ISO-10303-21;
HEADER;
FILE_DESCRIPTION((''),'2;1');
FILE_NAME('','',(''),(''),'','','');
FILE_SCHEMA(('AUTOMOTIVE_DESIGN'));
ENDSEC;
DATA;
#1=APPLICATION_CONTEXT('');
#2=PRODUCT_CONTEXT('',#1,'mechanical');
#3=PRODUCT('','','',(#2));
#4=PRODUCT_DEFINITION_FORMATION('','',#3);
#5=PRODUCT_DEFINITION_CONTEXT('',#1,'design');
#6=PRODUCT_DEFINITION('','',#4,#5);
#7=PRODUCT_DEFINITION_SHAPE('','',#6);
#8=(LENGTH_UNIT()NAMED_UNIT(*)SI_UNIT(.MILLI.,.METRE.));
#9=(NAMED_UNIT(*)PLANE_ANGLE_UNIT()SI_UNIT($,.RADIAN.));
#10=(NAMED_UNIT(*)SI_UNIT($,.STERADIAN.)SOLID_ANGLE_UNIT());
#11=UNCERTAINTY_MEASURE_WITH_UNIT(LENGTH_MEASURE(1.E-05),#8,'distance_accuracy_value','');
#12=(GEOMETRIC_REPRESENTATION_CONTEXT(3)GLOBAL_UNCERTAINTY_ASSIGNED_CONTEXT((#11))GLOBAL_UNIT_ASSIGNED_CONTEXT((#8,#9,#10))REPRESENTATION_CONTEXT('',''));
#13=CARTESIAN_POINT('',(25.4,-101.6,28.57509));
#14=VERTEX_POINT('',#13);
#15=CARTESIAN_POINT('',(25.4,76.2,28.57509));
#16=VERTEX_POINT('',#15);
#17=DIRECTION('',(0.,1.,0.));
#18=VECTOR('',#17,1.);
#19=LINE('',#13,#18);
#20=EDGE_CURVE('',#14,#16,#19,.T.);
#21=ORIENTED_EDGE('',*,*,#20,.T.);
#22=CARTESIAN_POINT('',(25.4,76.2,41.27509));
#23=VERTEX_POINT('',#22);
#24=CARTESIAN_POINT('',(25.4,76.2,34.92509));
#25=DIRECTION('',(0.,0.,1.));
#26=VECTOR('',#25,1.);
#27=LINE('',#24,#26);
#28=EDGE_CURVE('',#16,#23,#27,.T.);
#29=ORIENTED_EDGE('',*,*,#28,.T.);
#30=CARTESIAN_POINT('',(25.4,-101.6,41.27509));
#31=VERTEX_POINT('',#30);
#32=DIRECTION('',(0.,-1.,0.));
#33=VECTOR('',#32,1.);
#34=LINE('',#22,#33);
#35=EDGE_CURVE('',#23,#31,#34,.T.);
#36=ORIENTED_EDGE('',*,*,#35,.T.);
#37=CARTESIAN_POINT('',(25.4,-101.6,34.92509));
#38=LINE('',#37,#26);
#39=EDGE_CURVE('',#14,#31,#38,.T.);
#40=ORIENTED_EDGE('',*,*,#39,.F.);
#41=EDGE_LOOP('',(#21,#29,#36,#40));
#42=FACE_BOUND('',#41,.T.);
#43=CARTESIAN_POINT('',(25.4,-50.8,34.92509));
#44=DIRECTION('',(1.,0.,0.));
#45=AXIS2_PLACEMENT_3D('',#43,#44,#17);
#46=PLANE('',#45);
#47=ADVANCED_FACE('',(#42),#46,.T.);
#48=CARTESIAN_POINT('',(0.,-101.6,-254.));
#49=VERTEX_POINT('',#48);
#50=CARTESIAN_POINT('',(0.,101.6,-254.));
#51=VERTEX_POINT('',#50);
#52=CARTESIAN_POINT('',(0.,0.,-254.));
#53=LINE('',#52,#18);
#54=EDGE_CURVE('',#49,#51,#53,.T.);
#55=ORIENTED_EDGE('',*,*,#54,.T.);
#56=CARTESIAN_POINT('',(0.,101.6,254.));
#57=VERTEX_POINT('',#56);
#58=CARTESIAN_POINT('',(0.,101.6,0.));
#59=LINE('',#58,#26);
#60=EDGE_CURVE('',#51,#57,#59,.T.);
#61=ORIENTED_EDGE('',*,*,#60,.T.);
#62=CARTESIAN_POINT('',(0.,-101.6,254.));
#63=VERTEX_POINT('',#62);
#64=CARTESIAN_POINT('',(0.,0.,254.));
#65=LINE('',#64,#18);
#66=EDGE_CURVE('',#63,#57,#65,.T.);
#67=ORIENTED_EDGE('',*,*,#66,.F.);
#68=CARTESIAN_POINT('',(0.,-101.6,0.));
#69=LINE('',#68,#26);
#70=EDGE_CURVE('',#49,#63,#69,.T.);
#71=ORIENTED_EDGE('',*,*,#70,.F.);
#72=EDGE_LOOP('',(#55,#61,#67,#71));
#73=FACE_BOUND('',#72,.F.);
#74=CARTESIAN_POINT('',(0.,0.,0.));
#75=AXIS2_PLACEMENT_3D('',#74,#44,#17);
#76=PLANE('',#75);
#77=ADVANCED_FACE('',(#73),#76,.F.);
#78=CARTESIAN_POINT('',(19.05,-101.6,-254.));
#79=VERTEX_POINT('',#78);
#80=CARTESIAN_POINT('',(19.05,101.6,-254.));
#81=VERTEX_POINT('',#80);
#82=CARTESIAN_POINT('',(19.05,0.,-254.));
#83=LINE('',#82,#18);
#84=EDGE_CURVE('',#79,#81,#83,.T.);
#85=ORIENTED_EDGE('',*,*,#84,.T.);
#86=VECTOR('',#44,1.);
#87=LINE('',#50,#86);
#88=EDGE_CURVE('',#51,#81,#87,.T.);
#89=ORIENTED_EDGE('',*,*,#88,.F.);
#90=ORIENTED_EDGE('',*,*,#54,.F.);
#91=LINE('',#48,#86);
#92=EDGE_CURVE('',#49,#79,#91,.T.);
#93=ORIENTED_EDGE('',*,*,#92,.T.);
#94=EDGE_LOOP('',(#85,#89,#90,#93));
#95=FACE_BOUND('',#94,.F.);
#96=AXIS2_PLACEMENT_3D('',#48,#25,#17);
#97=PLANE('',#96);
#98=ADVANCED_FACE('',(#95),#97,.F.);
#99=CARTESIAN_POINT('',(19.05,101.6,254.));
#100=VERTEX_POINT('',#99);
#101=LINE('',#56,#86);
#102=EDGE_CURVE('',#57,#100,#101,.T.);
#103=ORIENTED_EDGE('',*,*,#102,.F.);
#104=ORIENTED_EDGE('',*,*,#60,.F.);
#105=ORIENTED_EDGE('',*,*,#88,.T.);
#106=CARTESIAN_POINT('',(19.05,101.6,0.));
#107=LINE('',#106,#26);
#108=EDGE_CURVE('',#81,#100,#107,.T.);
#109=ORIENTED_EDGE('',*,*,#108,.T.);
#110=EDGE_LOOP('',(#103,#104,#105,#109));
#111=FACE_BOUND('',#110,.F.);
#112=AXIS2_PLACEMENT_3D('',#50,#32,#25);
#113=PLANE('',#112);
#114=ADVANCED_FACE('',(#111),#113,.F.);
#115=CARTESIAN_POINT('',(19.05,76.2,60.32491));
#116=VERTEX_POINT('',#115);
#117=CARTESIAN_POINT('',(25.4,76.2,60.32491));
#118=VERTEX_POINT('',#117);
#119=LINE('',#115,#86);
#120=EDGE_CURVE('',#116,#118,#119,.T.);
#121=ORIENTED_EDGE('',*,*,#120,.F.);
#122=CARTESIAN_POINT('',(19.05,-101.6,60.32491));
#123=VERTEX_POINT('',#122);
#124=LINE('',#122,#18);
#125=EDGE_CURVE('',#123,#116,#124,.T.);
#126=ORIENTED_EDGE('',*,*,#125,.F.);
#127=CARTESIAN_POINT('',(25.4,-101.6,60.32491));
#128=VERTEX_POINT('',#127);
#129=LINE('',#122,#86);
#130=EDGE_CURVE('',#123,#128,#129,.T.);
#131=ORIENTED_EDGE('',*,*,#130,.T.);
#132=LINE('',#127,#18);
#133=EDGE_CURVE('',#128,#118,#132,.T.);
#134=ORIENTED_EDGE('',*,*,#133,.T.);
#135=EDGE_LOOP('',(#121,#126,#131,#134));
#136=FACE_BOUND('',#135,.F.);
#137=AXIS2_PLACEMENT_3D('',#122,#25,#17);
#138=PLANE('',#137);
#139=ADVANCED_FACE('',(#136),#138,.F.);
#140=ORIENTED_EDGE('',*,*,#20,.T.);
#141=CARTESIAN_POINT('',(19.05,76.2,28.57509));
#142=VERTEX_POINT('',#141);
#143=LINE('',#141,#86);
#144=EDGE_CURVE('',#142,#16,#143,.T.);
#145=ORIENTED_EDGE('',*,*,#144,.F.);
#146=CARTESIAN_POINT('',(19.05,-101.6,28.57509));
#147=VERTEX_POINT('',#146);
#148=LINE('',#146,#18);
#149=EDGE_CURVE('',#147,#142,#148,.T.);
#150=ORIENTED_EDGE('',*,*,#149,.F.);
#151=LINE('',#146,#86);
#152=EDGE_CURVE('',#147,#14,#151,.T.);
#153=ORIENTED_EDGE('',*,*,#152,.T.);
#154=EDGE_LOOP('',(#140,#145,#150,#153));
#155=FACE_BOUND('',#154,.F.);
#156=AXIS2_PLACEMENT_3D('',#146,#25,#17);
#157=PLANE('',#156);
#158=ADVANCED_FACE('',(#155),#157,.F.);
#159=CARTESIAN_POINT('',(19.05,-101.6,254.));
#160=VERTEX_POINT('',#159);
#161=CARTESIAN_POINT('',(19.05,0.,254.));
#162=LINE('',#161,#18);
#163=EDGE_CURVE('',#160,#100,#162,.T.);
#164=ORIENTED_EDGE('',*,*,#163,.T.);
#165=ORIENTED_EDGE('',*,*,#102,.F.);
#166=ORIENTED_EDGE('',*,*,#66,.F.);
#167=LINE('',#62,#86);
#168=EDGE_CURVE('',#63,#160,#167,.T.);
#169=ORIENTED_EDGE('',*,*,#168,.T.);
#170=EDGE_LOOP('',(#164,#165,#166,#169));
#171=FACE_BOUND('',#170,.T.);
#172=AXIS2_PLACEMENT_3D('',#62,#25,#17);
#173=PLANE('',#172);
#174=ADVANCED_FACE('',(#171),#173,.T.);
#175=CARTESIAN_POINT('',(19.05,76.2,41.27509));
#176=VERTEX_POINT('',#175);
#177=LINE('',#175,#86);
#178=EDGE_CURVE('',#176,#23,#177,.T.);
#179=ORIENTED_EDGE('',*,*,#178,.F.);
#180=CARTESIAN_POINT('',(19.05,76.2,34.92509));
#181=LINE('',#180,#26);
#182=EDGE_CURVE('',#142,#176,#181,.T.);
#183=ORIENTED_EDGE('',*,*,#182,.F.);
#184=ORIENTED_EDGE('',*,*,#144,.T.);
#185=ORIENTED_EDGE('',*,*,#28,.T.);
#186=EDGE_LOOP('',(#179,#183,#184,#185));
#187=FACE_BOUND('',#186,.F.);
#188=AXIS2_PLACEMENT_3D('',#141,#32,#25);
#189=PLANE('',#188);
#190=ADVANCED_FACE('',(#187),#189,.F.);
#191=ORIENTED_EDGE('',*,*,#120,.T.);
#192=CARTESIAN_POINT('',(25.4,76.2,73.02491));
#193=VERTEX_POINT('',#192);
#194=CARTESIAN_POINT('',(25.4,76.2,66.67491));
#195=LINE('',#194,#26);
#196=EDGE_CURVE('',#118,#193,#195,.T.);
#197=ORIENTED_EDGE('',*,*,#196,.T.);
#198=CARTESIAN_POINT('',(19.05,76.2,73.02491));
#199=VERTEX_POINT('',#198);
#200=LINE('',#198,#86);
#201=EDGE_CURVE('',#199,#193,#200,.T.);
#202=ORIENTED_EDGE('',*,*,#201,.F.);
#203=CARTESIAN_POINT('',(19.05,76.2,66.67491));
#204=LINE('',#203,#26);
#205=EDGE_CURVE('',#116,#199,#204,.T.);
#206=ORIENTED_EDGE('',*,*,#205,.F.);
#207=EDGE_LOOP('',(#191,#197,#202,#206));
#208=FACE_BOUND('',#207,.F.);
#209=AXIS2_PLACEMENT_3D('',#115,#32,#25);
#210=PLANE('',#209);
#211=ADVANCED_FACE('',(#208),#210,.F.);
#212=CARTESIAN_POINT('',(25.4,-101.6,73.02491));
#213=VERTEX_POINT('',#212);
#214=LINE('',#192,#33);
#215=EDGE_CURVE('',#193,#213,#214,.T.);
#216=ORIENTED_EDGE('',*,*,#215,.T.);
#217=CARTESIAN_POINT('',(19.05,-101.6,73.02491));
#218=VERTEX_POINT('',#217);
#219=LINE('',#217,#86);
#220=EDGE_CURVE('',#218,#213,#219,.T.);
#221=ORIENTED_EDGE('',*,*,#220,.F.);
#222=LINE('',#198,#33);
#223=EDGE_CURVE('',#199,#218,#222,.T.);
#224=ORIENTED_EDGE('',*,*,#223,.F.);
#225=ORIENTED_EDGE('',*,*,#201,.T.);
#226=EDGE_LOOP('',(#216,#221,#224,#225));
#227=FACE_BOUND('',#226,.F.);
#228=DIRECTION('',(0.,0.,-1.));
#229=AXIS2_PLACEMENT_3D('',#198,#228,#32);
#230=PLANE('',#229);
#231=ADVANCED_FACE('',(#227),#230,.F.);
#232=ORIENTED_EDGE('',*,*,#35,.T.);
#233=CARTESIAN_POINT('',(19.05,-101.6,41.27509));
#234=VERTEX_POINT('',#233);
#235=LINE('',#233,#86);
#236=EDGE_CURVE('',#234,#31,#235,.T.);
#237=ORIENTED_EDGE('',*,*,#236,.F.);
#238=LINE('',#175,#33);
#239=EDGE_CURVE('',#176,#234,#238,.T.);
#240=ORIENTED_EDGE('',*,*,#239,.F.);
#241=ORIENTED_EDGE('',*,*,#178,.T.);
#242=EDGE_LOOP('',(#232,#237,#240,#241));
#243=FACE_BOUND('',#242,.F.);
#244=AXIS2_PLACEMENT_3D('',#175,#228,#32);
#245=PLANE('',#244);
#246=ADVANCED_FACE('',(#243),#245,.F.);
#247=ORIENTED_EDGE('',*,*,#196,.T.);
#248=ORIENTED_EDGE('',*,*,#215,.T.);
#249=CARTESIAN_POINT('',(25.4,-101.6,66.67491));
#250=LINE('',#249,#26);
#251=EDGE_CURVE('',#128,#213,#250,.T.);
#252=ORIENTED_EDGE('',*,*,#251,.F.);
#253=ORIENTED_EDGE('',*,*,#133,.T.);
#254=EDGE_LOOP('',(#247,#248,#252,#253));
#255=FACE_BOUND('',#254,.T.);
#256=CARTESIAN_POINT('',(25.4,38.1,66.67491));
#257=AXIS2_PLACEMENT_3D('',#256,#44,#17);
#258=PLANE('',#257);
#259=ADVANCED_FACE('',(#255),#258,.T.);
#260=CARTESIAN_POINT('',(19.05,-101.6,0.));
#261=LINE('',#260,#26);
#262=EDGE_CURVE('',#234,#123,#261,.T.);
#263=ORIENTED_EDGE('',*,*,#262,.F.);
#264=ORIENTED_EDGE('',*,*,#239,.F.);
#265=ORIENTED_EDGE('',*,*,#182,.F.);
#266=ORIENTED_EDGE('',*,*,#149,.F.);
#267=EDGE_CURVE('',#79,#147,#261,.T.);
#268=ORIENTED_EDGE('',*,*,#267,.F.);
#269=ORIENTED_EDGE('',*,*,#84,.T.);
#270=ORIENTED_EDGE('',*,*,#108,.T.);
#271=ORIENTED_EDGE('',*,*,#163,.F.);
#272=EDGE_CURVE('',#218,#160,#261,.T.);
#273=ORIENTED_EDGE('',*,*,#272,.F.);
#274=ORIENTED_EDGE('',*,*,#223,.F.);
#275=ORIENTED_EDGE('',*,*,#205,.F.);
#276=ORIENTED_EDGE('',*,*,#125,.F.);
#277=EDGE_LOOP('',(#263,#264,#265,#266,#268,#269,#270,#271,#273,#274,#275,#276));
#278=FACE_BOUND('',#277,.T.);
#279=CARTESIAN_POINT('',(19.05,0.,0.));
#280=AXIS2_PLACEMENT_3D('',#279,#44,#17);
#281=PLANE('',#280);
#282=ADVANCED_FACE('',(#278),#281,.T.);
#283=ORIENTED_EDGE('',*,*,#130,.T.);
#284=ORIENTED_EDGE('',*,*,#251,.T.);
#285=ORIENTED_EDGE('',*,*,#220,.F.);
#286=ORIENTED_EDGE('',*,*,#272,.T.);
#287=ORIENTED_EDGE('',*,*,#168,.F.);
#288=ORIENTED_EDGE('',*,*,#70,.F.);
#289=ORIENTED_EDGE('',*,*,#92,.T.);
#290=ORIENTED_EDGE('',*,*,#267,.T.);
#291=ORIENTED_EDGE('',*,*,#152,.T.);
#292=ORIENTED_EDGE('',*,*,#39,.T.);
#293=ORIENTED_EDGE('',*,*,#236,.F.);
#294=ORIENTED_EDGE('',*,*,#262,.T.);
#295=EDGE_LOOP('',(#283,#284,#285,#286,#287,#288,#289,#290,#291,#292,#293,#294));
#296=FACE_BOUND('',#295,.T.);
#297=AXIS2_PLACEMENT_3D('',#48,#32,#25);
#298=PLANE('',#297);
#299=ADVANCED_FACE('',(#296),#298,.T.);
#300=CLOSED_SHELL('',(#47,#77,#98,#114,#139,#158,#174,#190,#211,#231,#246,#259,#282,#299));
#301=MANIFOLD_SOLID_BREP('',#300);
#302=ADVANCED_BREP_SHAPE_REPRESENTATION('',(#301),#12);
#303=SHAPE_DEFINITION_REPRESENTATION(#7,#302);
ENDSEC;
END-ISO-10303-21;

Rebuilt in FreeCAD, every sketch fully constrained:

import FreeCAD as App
import Part
import Sketcher

V = App.Vector
Q = App.Units.Quantity


def add_polygon(sketch, points):
    """Adds a closed chain of lines whose ends are joined by coincident constraints."""
    first, n = sketch.GeometryCount, len(points)
    for a, b in zip(points, points[1:] + points[:1]):
        sketch.addGeometry(Part.LineSegment(App.Vector(*a, 0), App.Vector(*b, 0)), False)
    for i in range(n):
        sketch.addConstraint(Sketcher.Constraint("Coincident", first + i, 2, first + (i + 1) % n, 1))

doc = App.newDocument("Part")
body = doc.addObject("PartDesign::Body", "Body")

# Sketch on YZ plane
sketch1 = doc.addObject("Sketcher::SketchObject", "Sketch")
body.addObject(sketch1)
sketch1.AttachmentSupport = (doc.YZ_Plane, [""])
sketch1.MapMode = "FlatFace"
add_polygon(sketch1, [(-101.6, 254), (-101.6, -254), (101.6, -254), (101.6, 254)])  # lines 0-3
sketch1.addConstraint(Sketcher.Constraint("Vertical", 0))
sketch1.addConstraint(Sketcher.Constraint("Horizontal", 1))
sketch1.addConstraint(Sketcher.Constraint("Vertical", 2))
sketch1.addConstraint(Sketcher.Constraint("Horizontal", 3))
sketch1.addConstraint(Sketcher.Constraint("Symmetric", 0, 2, 2, 2, -1, 1))
sketch1.addConstraint(Sketcher.Constraint("DistanceX", 1, 1, 1, 2, Q("8 in")))
sketch1.addConstraint(Sketcher.Constraint("DistanceY", 0, 2, 0, 1, Q("20 in")))
pad1 = doc.addObject("PartDesign::Pad", "Pad")
body.addObject(pad1)
pad1.Profile = sketch1
pad1.Length = Q("0.75 in")

# Sketch on YZ plane
sketch2 = doc.addObject("Sketcher::SketchObject", "Sketch001")
body.addObject(sketch2)
sketch2.AttachmentSupport = (doc.YZ_Plane, [""])
sketch2.MapMode = "FlatFace"
sketch2.AttachmentOffset = App.Placement(V(0, 0, 0.75 * 25.4), App.Rotation())
add_polygon(sketch2, [(76.2, 60.32491), (76.2, 73.02491), (-101.6, 73.02491), (-101.6, 60.32491)])  # lines 0-3
add_polygon(sketch2, [(-101.6, 41.27509), (-101.6, 28.57509), (76.2, 28.57509), (76.2, 41.27509)])  # lines 4-7
sketch2.addConstraint(Sketcher.Constraint("Vertical", 0))
sketch2.addConstraint(Sketcher.Constraint("Horizontal", 1))
sketch2.addConstraint(Sketcher.Constraint("Vertical", 2))
sketch2.addConstraint(Sketcher.Constraint("Horizontal", 3))
sketch2.addConstraint(Sketcher.Constraint("Vertical", 4))
sketch2.addConstraint(Sketcher.Constraint("Horizontal", 5))
sketch2.addConstraint(Sketcher.Constraint("Vertical", 6))
sketch2.addConstraint(Sketcher.Constraint("Horizontal", 7))
sketch2.addConstraint(Sketcher.Constraint("Vertical", 2, 2, 4, 2))
sketch2.addConstraint(Sketcher.Constraint("Vertical", 3, 2, 5, 2))
sketch2.addConstraint(Sketcher.Constraint("Equal", 2, 4))
sketch2.addConstraint(Sketcher.Constraint("DistanceX", 1, 2, 1, 1, Q("7 in")))
sketch2.addConstraint(Sketcher.Constraint("DistanceY", 0, 1, 0, 2, Q("0.5 in")))
sketch2.addConstraint(Sketcher.Constraint("DistanceX", -1, 1, 0, 2, Q("3 in")))
sketch2.addConstraint(Sketcher.Constraint("DistanceY", -1, 1, 0, 2, 73.02491))
sketch2.addConstraint(Sketcher.Constraint("DistanceY", -1, 1, 4, 2, 28.57509))
pad2 = doc.addObject("PartDesign::Pad", "Pad001")
body.addObject(pad2)
pad2.Profile = sketch2
pad2.Length = Q("0.25 in")

doc.recompute()
